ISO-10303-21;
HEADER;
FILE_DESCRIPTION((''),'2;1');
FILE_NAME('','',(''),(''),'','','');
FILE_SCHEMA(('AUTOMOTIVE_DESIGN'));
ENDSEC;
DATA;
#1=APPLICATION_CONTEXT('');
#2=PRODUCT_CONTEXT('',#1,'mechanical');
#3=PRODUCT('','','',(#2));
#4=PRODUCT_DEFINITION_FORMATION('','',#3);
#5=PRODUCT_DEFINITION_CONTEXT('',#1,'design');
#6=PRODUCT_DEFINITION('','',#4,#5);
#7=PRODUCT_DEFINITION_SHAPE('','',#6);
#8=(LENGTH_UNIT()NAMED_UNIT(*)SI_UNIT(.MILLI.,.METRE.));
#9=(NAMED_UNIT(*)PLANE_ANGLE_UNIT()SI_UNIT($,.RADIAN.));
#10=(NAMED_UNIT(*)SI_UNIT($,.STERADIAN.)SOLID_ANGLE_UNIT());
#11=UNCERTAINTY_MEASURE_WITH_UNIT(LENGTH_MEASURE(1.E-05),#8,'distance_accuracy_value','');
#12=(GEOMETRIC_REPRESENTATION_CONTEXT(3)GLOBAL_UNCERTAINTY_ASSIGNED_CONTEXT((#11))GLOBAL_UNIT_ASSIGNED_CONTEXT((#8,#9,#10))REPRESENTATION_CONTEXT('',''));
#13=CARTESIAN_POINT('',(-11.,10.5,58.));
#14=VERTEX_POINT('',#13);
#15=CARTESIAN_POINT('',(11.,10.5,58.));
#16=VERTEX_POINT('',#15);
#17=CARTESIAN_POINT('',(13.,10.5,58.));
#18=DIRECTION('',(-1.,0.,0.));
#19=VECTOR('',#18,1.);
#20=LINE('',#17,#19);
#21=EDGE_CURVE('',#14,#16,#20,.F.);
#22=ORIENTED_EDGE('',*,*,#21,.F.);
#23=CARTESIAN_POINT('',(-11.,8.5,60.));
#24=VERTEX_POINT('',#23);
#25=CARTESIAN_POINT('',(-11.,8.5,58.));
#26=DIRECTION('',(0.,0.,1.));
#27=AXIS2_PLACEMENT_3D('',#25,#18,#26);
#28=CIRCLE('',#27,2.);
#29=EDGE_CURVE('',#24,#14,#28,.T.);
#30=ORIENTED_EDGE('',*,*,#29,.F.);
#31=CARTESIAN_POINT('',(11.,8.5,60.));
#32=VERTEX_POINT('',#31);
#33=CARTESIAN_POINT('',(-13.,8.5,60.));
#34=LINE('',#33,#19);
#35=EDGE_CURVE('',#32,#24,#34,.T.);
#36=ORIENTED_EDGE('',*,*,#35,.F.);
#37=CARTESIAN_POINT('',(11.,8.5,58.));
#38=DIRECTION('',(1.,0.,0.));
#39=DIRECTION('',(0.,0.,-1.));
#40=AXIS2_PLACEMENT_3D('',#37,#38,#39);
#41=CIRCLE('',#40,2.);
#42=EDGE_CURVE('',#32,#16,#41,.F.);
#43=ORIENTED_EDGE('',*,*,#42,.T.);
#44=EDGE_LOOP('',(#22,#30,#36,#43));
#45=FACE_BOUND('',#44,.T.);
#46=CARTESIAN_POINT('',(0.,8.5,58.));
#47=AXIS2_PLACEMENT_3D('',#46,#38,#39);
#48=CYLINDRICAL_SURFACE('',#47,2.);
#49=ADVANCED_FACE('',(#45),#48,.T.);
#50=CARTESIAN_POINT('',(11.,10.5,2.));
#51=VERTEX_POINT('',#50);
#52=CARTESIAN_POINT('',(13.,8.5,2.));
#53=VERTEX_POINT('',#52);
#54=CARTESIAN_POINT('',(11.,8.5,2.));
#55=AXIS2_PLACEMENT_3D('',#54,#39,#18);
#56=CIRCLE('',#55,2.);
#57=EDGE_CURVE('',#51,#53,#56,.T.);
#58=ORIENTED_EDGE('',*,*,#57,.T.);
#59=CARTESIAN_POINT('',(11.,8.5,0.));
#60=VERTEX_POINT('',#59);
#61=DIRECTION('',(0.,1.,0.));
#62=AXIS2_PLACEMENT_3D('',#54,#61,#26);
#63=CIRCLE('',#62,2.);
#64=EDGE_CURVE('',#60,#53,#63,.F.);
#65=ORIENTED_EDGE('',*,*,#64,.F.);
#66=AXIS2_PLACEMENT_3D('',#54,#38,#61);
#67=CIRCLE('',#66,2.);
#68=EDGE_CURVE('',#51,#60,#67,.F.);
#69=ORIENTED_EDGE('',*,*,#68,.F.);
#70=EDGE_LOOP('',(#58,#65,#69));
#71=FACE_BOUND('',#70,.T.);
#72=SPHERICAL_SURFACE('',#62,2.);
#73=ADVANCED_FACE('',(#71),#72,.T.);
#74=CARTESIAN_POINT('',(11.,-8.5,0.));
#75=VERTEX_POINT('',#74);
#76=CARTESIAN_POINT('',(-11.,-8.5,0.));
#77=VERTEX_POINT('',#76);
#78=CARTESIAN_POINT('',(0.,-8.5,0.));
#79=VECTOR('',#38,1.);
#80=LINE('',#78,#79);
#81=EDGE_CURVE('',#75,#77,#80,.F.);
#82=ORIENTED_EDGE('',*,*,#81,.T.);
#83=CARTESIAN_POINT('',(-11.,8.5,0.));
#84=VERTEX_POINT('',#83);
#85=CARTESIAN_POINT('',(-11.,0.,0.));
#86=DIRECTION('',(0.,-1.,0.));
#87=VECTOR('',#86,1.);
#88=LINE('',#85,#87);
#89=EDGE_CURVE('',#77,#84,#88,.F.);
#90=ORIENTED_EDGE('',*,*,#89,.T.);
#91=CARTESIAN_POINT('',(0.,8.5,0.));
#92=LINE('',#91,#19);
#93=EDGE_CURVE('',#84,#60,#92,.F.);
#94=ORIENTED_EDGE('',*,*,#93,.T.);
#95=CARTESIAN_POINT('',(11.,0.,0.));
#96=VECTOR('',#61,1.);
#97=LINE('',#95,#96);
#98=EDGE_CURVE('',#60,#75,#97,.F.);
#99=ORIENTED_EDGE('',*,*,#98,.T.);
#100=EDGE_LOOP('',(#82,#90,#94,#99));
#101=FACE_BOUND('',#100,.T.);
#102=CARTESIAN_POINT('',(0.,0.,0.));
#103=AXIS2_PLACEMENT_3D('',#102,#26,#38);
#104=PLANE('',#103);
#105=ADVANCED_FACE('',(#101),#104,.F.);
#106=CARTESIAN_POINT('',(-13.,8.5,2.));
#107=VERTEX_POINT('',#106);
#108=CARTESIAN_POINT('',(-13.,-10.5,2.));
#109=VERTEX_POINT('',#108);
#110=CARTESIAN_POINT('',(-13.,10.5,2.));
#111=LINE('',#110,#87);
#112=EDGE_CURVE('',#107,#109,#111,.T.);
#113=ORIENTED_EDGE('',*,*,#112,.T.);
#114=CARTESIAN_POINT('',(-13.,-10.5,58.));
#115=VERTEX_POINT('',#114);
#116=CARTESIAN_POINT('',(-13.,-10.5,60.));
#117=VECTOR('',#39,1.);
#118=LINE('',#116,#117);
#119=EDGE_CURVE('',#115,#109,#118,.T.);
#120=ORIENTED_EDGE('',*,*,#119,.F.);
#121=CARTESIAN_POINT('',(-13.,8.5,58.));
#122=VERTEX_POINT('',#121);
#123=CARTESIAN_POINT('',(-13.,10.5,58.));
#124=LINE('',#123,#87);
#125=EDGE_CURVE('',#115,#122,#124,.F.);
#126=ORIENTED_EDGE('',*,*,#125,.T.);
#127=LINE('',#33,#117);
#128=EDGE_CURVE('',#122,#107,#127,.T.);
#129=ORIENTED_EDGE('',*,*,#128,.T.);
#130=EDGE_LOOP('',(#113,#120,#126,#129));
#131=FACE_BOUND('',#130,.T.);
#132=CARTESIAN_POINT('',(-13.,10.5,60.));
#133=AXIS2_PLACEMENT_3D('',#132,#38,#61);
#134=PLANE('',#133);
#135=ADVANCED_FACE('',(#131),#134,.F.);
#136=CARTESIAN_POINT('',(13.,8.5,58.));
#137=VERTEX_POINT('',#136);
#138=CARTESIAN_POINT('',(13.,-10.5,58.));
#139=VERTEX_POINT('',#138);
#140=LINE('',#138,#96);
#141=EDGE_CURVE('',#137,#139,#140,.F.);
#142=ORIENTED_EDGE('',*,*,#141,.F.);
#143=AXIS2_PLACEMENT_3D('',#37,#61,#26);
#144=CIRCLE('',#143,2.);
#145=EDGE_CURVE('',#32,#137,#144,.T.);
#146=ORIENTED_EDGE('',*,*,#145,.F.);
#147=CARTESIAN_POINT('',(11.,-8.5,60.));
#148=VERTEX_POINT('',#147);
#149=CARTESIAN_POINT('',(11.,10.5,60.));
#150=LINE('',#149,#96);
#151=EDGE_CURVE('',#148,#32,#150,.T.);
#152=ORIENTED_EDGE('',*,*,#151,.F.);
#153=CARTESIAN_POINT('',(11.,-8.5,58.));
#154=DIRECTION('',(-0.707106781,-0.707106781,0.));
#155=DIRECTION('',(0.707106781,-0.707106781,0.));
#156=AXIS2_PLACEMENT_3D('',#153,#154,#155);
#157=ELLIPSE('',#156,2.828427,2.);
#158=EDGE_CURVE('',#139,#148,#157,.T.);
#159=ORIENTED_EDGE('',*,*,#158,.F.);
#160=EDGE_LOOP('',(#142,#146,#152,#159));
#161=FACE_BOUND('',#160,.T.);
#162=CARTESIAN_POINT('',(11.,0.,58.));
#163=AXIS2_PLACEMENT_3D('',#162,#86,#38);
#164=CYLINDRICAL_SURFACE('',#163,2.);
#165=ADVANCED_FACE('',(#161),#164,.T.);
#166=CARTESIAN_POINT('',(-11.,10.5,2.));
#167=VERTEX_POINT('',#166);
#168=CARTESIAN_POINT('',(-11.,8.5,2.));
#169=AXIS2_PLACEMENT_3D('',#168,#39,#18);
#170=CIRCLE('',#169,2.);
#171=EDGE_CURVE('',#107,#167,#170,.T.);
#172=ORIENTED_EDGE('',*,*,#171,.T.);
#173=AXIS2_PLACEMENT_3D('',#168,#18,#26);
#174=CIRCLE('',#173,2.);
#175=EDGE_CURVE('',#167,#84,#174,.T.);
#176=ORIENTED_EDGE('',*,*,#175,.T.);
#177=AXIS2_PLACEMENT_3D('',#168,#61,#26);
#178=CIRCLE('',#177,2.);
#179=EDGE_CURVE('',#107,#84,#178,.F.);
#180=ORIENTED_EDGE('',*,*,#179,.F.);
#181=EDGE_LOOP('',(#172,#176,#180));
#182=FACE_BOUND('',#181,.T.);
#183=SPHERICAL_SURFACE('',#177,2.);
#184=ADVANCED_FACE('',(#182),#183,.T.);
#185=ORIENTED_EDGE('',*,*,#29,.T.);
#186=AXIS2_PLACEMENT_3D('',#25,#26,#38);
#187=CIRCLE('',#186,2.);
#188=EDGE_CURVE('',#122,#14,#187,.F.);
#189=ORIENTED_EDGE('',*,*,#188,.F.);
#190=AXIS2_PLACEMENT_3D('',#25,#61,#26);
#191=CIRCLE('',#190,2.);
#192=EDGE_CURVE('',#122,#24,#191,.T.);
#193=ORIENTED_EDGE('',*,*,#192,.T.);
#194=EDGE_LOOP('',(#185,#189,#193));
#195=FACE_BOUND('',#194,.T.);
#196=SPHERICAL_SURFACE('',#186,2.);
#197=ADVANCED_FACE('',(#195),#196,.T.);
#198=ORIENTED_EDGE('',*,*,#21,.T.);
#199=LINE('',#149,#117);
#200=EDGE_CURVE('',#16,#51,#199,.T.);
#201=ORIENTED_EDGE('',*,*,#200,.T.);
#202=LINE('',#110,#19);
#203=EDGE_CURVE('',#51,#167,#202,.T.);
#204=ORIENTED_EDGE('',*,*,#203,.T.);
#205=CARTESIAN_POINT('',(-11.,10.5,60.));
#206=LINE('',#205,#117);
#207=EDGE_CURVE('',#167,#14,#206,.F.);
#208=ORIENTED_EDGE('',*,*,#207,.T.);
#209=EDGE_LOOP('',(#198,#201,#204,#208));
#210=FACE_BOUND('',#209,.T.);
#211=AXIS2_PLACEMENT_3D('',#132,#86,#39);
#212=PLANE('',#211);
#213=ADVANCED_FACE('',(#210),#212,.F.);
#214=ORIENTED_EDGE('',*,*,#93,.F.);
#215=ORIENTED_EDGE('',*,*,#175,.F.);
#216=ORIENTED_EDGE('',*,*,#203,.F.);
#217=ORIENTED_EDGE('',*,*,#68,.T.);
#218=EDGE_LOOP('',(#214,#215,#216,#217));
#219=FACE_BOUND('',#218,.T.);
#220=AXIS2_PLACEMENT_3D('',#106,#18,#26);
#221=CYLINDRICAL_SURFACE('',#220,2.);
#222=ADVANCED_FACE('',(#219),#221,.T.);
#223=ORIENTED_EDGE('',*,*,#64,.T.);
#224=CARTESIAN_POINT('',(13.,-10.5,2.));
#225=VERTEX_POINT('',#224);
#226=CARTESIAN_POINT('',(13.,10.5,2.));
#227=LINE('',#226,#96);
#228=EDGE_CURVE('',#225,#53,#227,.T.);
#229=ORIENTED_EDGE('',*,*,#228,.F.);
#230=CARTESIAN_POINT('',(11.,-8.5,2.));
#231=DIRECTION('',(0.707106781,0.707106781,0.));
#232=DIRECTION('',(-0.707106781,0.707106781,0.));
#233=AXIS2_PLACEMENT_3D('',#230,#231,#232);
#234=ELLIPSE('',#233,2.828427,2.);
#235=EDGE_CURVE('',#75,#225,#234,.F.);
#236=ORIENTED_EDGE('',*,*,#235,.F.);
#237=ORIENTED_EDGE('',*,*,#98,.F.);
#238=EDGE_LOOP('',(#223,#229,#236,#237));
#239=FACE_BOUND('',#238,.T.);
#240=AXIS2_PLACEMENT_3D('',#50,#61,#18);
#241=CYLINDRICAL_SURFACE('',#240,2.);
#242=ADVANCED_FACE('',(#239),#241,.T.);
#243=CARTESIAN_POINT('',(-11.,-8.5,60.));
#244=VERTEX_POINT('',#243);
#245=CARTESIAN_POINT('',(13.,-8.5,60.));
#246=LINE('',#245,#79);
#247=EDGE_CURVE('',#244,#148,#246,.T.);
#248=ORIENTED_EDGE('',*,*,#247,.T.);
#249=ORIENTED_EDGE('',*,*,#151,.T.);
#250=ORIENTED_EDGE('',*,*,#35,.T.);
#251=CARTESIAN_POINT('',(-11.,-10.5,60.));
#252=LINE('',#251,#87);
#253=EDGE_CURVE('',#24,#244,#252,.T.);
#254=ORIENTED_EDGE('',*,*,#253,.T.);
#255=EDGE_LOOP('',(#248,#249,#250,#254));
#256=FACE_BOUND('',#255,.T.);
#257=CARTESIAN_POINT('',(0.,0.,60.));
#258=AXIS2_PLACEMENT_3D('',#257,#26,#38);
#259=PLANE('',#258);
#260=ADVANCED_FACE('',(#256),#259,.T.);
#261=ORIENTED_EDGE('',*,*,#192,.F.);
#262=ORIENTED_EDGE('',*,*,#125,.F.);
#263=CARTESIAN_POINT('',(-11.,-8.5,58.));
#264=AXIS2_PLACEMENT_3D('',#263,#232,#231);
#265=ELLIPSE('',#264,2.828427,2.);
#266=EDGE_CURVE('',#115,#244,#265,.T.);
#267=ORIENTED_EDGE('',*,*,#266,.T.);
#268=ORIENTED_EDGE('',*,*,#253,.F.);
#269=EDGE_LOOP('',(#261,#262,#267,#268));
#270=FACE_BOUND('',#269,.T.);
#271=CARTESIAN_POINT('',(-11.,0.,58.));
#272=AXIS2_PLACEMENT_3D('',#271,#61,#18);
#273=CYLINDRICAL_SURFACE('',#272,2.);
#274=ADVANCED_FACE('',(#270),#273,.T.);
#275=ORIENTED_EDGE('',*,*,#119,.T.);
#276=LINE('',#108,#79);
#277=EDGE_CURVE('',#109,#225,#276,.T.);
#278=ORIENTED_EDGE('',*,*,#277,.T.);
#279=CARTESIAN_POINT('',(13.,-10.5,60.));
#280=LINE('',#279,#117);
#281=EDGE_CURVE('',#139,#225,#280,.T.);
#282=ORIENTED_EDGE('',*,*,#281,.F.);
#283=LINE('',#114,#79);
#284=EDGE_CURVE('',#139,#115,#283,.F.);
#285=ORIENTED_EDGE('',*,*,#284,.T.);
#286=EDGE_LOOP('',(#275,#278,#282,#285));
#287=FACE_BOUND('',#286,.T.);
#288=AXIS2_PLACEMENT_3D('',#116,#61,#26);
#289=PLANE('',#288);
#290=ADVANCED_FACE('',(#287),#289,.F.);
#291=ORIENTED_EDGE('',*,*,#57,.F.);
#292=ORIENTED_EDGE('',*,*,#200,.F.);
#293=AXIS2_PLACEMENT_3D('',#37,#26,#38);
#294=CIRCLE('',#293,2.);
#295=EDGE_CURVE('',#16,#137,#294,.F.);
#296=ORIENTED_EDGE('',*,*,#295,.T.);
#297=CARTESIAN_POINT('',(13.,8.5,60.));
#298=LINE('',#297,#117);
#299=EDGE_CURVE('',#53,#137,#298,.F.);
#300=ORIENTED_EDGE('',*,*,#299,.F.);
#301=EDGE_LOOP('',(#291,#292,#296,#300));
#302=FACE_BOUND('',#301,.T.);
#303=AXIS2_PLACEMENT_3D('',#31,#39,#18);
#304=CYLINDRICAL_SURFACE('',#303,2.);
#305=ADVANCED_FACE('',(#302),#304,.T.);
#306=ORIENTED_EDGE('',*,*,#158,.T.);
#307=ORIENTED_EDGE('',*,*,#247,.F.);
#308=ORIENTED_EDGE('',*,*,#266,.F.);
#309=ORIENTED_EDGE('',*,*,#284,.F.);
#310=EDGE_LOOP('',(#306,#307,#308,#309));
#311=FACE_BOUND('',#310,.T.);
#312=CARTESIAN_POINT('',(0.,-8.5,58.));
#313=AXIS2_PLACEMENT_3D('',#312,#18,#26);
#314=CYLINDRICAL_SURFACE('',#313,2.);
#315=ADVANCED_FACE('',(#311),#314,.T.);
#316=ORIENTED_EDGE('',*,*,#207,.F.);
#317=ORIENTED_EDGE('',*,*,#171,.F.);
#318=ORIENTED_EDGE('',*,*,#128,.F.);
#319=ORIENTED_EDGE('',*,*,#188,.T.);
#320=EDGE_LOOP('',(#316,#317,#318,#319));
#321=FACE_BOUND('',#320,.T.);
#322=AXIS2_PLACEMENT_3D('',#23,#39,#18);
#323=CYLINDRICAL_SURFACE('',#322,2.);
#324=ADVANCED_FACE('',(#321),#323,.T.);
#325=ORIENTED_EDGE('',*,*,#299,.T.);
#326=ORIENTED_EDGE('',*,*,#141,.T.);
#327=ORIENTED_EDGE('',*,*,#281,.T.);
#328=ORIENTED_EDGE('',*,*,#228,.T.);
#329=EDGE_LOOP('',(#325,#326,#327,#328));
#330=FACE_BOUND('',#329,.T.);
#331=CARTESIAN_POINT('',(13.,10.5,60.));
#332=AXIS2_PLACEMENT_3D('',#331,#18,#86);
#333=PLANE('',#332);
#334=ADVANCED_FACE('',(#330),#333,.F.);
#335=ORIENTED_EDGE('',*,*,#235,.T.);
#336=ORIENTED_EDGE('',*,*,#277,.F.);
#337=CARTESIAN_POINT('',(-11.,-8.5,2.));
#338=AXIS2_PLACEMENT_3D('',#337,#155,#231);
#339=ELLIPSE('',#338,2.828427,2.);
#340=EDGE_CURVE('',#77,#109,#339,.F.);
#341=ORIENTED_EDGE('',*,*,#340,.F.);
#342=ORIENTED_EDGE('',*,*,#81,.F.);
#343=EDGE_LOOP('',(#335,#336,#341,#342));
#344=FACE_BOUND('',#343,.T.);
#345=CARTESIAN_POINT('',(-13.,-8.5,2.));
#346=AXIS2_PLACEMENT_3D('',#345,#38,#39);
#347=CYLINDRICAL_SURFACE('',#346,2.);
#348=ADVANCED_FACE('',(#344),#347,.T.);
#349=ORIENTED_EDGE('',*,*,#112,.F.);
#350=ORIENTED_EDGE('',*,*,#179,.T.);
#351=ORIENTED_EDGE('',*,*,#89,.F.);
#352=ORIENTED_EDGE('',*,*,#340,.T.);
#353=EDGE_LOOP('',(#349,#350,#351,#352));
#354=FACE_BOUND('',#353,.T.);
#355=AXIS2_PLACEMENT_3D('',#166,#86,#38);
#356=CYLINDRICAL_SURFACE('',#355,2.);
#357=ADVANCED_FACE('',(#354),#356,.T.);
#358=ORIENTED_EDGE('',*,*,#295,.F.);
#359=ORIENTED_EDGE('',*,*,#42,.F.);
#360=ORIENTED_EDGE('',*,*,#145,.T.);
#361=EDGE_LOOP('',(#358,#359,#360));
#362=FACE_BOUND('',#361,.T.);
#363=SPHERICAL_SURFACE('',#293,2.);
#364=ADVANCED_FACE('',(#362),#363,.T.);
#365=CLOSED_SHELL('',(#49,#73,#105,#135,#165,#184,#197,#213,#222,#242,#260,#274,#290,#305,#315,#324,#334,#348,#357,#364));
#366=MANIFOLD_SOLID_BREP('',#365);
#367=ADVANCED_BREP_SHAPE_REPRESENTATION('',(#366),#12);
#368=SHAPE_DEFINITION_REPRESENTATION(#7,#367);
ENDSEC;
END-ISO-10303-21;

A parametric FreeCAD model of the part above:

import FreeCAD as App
import Part
import Sketcher


def edges_at(feature, points):
    """Names of the edges that pass closest to the given points."""
    edges = feature.Shape.Edges
    near = lambda p: min(range(len(edges)), key=lambda i: edges[i].distToShape(Part.Vertex(*p))[0])
    return sorted({f"Edge{near(p) + 1}" for p in points})


def add_polygon(sketch, points):
    """Adds a closed chain of lines whose ends are joined by coincident constraints."""
    first, n = sketch.GeometryCount, len(points)
    for a, b in zip(points, points[1:] + points[:1]):
        sketch.addGeometry(Part.LineSegment(App.Vector(*a, 0), App.Vector(*b, 0)), False)
    for i in range(n):
        sketch.addConstraint(Sketcher.Constraint("Coincident", first + i, 2, first + (i + 1) % n, 1))

doc = App.newDocument("Part")
body = doc.addObject("PartDesign::Body", "Body")

sketch1 = body.newObject("Sketcher::SketchObject", "Sketch")
sketch1.AttachmentSupport = (doc.getObject("XY_Plane"), [""])
sketch1.MapMode = "FlatFace"
add_polygon(sketch1, [(-13, 10.5), (-13, -10.5), (13, -10.5), (13, 10.5)])
sketch1.addConstraint(Sketcher.Constraint("Vertical", 0))
sketch1.addConstraint(Sketcher.Constraint("Horizontal", 1))
sketch1.addConstraint(Sketcher.Constraint("Vertical", 2))
sketch1.addConstraint(Sketcher.Constraint("Horizontal", 3))
sketch1.addConstraint(Sketcher.Constraint("Symmetric", 0, 2, 2, 2, -1, 1))
sketch1.addConstraint(Sketcher.Constraint("DistanceX", 1, 1, 1, 2, 26.0))
sketch1.addConstraint(Sketcher.Constraint("DistanceY", 0, 2, 0, 1, 21.0))
pad1 = body.newObject("PartDesign::Pad", "Pad")
pad1.Profile = sketch1
pad1.Length = 60
doc.recompute()

fillet = body.newObject("PartDesign::Fillet", "Fillet")
fillet.Base = (pad1, edges_at(pad1, [
    (-13, 0, 60),
    (0, -10.5, 60),
    (13, 0, 60),
    (0, -10.5, 0),
    (-13, 0, 0),
    (0, 10.5, 0),
    (13, 0, 0),
    (-13, 10.5, 30),
    (13, 10.5, 30),
    (0, 10.5, 60),
]))
fillet.Radius = 2

doc.recompute()
